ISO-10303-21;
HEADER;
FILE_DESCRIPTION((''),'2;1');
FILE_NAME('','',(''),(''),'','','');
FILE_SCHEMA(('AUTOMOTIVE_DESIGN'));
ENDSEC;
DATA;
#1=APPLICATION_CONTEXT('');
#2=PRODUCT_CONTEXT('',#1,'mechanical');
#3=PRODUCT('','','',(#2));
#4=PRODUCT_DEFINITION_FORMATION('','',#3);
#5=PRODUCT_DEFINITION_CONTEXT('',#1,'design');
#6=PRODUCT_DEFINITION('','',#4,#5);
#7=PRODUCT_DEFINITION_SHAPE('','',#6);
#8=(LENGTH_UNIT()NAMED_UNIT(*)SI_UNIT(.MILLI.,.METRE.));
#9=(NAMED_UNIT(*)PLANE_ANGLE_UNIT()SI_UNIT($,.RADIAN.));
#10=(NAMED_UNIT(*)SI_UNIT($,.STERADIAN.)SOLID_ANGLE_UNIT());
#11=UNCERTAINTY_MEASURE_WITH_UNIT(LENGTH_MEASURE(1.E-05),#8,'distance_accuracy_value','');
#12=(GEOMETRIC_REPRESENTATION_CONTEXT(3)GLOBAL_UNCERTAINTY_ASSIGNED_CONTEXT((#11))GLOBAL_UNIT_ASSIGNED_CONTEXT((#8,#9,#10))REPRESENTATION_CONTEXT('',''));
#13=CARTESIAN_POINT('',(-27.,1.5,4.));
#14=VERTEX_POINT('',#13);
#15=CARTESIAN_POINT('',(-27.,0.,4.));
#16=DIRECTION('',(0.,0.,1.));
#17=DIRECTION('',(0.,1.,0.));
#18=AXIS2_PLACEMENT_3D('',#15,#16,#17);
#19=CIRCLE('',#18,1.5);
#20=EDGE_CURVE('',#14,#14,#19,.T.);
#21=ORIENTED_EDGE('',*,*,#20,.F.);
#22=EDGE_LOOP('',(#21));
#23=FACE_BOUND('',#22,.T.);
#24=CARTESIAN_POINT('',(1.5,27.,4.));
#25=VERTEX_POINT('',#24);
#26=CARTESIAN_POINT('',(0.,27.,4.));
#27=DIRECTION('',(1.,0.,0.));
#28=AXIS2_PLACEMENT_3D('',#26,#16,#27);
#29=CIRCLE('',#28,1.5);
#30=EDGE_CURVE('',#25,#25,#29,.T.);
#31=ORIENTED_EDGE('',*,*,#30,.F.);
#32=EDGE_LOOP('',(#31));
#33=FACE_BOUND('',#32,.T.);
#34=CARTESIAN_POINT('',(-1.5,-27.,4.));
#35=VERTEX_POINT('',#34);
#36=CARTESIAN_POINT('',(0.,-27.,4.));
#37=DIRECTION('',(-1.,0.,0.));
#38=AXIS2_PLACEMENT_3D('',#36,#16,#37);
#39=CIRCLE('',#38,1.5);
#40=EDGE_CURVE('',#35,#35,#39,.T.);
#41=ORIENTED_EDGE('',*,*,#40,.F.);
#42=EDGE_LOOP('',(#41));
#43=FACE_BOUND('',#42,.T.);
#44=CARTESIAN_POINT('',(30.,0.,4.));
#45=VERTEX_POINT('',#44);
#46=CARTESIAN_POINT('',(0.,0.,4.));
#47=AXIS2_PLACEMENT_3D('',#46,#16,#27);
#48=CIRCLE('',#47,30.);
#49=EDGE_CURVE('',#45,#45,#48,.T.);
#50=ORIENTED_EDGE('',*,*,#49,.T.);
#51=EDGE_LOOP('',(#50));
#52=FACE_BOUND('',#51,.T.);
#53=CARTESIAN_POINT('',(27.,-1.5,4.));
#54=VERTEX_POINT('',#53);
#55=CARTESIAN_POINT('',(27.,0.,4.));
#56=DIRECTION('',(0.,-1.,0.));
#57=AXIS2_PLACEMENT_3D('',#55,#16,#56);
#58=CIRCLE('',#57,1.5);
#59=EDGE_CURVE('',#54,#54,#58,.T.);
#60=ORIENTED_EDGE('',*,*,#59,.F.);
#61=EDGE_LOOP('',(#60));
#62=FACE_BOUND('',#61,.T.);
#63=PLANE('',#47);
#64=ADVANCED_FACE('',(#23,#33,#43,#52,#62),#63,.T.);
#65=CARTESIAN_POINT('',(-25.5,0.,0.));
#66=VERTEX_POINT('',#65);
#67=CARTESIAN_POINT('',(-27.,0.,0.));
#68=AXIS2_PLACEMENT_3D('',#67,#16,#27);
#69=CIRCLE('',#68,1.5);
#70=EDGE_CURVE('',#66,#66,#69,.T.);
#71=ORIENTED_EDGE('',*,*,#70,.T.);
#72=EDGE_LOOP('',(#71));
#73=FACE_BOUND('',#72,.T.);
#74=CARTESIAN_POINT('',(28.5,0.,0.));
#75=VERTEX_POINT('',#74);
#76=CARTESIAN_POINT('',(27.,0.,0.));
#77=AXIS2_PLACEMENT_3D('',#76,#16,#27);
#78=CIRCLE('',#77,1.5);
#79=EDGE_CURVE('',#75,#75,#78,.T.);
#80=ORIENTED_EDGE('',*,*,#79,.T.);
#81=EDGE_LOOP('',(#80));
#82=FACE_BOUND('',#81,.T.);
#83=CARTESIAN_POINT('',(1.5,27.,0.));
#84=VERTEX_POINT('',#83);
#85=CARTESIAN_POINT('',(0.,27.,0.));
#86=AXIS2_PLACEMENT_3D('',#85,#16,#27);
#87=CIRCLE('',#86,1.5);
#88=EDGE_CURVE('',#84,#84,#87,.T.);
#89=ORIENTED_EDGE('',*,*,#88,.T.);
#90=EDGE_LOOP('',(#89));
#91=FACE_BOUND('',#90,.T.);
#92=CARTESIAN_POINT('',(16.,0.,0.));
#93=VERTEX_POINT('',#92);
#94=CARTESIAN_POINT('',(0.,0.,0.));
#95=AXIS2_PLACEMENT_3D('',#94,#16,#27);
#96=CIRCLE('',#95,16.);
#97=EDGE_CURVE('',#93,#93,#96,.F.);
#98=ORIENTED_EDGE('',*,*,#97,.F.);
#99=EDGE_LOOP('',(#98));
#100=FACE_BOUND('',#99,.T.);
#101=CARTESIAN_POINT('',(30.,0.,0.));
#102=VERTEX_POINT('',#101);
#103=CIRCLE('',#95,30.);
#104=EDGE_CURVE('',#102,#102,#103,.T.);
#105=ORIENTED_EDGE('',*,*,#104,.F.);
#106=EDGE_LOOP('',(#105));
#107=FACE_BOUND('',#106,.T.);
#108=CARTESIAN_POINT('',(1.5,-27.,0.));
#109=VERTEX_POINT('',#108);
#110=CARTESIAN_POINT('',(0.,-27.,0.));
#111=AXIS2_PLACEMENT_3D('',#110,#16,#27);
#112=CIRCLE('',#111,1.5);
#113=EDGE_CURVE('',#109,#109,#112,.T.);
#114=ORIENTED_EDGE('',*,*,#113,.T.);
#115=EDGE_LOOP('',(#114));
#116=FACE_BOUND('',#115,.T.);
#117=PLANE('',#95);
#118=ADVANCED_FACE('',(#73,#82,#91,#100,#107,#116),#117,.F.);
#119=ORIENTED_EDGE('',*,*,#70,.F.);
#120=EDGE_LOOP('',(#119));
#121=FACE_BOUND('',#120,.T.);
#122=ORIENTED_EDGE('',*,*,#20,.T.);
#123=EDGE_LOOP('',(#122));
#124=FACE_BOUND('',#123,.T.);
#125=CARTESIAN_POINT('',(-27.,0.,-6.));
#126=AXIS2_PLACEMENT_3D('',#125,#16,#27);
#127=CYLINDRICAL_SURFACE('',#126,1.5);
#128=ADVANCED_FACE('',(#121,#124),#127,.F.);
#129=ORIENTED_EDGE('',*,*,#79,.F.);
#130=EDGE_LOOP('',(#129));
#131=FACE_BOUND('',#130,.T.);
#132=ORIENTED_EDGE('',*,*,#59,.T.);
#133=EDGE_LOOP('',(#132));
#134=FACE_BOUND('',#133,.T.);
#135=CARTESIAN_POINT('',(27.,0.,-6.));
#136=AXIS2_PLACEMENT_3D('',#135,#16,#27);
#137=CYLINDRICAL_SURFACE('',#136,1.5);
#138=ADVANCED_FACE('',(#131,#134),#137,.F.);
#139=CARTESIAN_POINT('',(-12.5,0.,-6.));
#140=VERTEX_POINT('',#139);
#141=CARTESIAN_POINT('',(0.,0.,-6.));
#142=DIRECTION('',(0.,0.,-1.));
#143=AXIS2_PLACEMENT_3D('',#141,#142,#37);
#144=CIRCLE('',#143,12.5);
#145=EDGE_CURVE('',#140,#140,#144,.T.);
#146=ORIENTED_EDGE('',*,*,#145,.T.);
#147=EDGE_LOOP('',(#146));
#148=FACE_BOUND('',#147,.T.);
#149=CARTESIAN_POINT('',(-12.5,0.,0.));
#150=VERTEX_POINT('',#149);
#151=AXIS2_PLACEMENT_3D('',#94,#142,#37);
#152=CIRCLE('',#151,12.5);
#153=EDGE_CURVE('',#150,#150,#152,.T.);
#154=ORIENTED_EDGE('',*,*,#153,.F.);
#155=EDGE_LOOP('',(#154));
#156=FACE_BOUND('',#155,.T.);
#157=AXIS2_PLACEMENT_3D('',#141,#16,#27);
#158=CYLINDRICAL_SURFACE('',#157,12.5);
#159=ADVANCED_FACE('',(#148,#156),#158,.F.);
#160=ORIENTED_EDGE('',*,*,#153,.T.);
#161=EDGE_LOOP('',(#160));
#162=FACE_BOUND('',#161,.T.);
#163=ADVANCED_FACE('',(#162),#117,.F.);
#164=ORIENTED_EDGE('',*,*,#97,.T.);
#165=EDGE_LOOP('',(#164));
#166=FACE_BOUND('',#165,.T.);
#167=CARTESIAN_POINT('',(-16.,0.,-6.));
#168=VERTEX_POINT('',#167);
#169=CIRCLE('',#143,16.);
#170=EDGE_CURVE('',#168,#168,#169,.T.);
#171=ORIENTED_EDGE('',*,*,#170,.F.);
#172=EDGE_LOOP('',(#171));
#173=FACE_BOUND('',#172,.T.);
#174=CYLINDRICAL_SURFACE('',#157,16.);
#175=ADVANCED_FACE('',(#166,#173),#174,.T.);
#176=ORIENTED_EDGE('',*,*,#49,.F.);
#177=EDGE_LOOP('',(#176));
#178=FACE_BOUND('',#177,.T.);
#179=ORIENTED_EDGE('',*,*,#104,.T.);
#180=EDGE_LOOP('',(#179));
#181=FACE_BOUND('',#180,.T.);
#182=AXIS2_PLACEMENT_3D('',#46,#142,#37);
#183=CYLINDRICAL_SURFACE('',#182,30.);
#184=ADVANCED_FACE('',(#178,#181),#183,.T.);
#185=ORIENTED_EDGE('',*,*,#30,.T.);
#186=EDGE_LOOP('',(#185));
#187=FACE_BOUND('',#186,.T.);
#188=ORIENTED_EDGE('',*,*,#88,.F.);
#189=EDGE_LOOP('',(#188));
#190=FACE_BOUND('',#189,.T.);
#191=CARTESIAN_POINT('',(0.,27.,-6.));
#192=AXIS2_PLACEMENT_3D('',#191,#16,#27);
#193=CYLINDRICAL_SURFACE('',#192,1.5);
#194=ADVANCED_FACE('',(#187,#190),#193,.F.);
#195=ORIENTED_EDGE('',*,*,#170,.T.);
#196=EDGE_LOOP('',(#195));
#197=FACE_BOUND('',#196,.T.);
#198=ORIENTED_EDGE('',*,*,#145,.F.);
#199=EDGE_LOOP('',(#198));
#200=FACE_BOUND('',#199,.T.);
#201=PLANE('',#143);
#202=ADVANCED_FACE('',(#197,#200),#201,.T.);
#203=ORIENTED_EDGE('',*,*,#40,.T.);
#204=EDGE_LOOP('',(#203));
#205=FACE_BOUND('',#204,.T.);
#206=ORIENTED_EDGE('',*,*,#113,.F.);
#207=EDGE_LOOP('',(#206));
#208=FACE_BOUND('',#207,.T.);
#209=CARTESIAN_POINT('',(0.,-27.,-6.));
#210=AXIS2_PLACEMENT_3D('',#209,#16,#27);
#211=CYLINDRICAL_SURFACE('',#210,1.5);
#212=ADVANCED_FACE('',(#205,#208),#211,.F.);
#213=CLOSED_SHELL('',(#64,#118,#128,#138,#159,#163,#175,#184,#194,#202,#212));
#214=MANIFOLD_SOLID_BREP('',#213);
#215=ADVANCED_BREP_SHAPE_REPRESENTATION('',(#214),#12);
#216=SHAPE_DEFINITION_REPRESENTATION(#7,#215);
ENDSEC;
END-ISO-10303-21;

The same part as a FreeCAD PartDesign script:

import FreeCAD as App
import Part
import Sketcher

doc = App.newDocument("Part")
body = doc.addObject("PartDesign::Body", "Body")

sketch1 = doc.addObject("Sketcher::SketchObject", "Sketch")
body.addObject(sketch1)
sketch1.AttachmentSupport = (doc.XY_Plane, [""])
sketch1.MapMode = "FlatFace"
sketch1.addGeometry(Part.Circle(App.Vector(0, 0, 0), App.Vector(0, 0, 1), 30), False)
sketch1.addConstraint(Sketcher.Constraint("Coincident", 0, 3, -1, 1))
sketch1.addConstraint(Sketcher.Constraint("Diameter", 0, 60.0))
pad1 = doc.addObject("PartDesign::Pad", "Pad")
body.addObject(pad1)
pad1.Profile = sketch1
pad1.Length = 4

sketch2 = doc.addObject("Sketcher::SketchObject", "Sketch001")
body.addObject(sketch2)
sketch2.AttachmentSupport = (doc.XY_Plane, [""])
sketch2.MapMode = "FlatFace"
sketch2.AttachmentOffset = App.Placement(App.Vector(0, 0, 4), App.Rotation())
sketch2.addGeometry(Part.Circle(App.Vector(0, 27, 0), App.Vector(0, 0, 1), 1.5), False)
sketch2.addConstraint(Sketcher.Constraint("PointOnObject", 0, 3, -2))
sketch2.addConstraint(Sketcher.Constraint("Diameter", 0, 3.0))
sketch2.addConstraint(Sketcher.Constraint("DistanceY", -1, 1, 0, 3, 27.0))
pocket1 = doc.addObject("PartDesign::Pocket", "Pocket")
body.addObject(pocket1)
pocket1.Profile = sketch2
pocket1.Length = 10
doc.recompute()

polarpattern = doc.addObject("PartDesign::PolarPattern", "PolarPattern")
body.addObject(polarpattern)
polarpattern.Originals = [pocket1]
polarpattern.Axis = (doc.Z_Axis, [""])
polarpattern.Angle = 360
polarpattern.Occurrences = 4
body.Tip = polarpattern

sketch3 = doc.addObject("Sketcher::SketchObject", "Sketch002")
body.addObject(sketch3)
sketch3.AttachmentSupport = (doc.XY_Plane, [""])
sketch3.MapMode = "FlatFace"
sketch3.addGeometry(Part.Circle(App.Vector(0, 0, 0), App.Vector(0, 0, 1), 16), False)
sketch3.addGeometry(Part.Circle(App.Vector(0, 0, 0), App.Vector(0, 0, 1), 12.5), False)
sketch3.addConstraint(Sketcher.Constraint("Coincident", 0, 3, -1, 1))
sketch3.addConstraint(Sketcher.Constraint("Coincident", 1, 3, -1, 1))
sketch3.addConstraint(Sketcher.Constraint("Diameter", 0, 32.0))
sketch3.addConstraint(Sketcher.Constraint("Diameter", 1, 25.0))
pad2 = doc.addObject("PartDesign::Pad", "Pad001")
body.addObject(pad2)
pad2.Profile = sketch3
pad2.Length = 6
pad2.Reversed = True

doc.recompute()
